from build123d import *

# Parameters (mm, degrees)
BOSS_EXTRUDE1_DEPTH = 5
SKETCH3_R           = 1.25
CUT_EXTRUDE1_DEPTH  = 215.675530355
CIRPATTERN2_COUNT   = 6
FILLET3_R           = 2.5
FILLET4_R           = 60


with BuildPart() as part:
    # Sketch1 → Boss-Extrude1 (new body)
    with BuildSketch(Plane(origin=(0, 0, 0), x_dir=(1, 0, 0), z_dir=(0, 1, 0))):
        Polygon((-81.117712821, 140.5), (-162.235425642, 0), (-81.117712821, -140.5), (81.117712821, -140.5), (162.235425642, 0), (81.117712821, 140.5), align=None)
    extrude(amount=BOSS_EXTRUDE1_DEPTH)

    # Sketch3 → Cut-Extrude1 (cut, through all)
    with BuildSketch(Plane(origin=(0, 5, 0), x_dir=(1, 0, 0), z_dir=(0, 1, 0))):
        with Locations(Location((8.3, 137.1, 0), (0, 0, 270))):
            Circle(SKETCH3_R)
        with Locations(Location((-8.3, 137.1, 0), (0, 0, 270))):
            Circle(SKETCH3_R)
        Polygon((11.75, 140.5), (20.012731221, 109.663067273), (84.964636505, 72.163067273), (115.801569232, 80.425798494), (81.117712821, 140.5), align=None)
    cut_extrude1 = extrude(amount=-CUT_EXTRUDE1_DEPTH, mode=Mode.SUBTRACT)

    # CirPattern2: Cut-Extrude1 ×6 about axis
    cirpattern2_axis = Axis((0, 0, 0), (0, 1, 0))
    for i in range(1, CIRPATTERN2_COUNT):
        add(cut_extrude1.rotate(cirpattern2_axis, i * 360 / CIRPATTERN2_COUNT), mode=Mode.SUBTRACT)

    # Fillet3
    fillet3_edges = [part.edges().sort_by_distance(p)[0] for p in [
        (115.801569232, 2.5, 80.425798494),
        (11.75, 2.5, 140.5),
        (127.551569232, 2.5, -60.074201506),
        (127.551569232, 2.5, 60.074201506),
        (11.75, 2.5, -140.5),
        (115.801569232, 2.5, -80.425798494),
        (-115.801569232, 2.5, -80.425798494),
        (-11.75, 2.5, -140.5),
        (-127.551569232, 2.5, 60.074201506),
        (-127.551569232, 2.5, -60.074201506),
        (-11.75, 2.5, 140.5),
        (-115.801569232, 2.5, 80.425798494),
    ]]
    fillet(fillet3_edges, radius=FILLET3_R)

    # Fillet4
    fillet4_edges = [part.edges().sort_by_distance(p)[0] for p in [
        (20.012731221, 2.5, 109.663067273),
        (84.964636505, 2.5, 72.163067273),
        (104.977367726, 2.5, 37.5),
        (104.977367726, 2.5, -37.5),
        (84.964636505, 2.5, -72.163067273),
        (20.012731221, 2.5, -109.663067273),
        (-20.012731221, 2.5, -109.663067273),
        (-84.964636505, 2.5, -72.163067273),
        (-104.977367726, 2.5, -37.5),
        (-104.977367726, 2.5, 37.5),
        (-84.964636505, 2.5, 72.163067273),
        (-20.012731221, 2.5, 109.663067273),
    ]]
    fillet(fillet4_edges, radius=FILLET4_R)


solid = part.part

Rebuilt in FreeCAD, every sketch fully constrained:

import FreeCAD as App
import Part
import Sketcher
from FreeCAD import Vector
Q = App.Units.Quantity


def edges_at(feature, points):
    """Names of the edges that pass closest to the given points."""
    edges = feature.Shape.Edges
    near = lambda p: min(range(len(edges)), key=lambda i: edges[i].distToShape(Part.Vertex(*p))[0])
    return sorted({f"Edge{near(p) + 1}" for p in points})

doc = App.newDocument("Part")
params = doc.addObject("Spreadsheet::Sheet", "Params")
for row, (alias, value) in enumerate([
    ("pad1_length", "5 mm"),
    ("sketch2_diameter", "2.5 mm"),
    ("sketch2_length", "75 mm"),
    ("fillet_radius", "2.5 mm"),
    ("fillet2_radius", "60 mm"),
], start=1):
    params.set(f"A{row}", alias)
    params.set(f"B{row}", "=" + value)
    params.setAlias(f"B{row}", alias)

body = doc.addObject("PartDesign::Body", "Body")

sketch1 = doc.addObject("Sketcher::SketchObject", "Sketch")
body.addObject(sketch1)
sketch1.AttachmentSupport = (doc.XZ_Plane, [""])
sketch1.MapMode = "FlatFace"
sketch1.addGeometry([
    Part.LineSegment(Vector(-81.117713, -140.5, 0), Vector(-162.235426, 0, 0)),
    Part.LineSegment(Vector(-162.235426, 0, 0), Vector(-81.117713, 140.5, 0)),
    Part.LineSegment(Vector(-81.117713, 140.5, 0), Vector(81.117713, 140.5, 0)),
    Part.LineSegment(Vector(81.117713, 140.5, 0), Vector(162.235426, 0, 0)),
    Part.LineSegment(Vector(162.235426, 0, 0), Vector(81.117713, -140.5, 0)),
    Part.LineSegment(Vector(81.117713, -140.5, 0), Vector(-81.117713, -140.5, 0)),
], False)
sketch1.addConstraint([
    Sketcher.Constraint("Coincident", 0, 2, 1, 1),
    Sketcher.Constraint("Coincident", 1, 2, 2, 1),
    Sketcher.Constraint("Coincident", 2, 2, 3, 1),
    Sketcher.Constraint("Coincident", 3, 2, 4, 1),
    Sketcher.Constraint("Coincident", 4, 2, 5, 1),
    Sketcher.Constraint("Coincident", 5, 2, 0, 1),
    Sketcher.Constraint("Horizontal", 2),
    Sketcher.Constraint("Horizontal", 5),
    Sketcher.Constraint("Symmetric", 0, 2, 3, 2, -1, 1),
    Sketcher.Constraint("Symmetric", 1, 2, 4, 2, -1, 1),
    Sketcher.Constraint("PointOnObject", 0, 2, -1),
    Sketcher.Constraint("Parallel", 0, 3),
    Sketcher.Constraint("Vertical", 2, 2, 4, 2),
    Sketcher.Constraint("Angle", 0, Q("120 deg")),
    Sketcher.Constraint("DistanceY", 4, 2, 2, 2, Q("281 mm")),
    Sketcher.Constraint("DistanceX", 2, 1, 2, 2, Q("162.235426 mm")),
])
pad1 = doc.addObject("PartDesign::Pad", "Pad")
body.addObject(pad1)
pad1.Profile = sketch1
pad1.setExpression("Length", "Params.pad1_length")
pad1.Reversed = True

sketch2 = doc.addObject("Sketcher::SketchObject", "Sketch001")
body.addObject(sketch2)
sketch2.AttachmentSupport = (doc.XZ_Plane, [""])
sketch2.MapMode = "FlatFace"
sketch2.AttachmentOffset = App.Placement(Vector(0, 0, -5), App.Rotation())
sketch2.addGeometry([
    Part.Circle(Vector(8.3, -137.1, 0), Vector(0, 0, 1), 1.25),
    Part.Circle(Vector(-8.3, -137.1, 0), Vector(0, 0, 1), 1.25),
    Part.LineSegment(Vector(11.75, -140.5, 0), Vector(20.012731, -109.663067, 0)),
    Part.LineSegment(Vector(20.012731, -109.663067, 0), Vector(84.964637, -72.163067, 0)),
    Part.LineSegment(Vector(84.964637, -72.163067, 0), Vector(115.801569, -80.425798, 0)),
    Part.LineSegment(Vector(115.801569, -80.425798, 0), Vector(81.117713, -140.5, 0)),
    Part.LineSegment(Vector(81.117713, -140.5, 0), Vector(11.75, -140.5, 0)),
], False)
sketch2.addConstraint([
    Sketcher.Constraint("Coincident", 2, 2, 3, 1),
    Sketcher.Constraint("Coincident", 3, 2, 4, 1),
    Sketcher.Constraint("Coincident", 4, 2, 5, 1),
    Sketcher.Constraint("Coincident", 5, 2, 6, 1),
    Sketcher.Constraint("Coincident", 6, 2, 2, 1),
    Sketcher.Constraint("Horizontal", 6),
    Sketcher.Constraint("Equal", 0, 1),
    Sketcher.Constraint("Symmetric", 0, 3, 1, 3, -2),
    Sketcher.Constraint("Perpendicular", 2, 4),
    Sketcher.Constraint("Equal", 2, 4),
    Sketcher.Constraint("Diameter", 0, Q("2.5 mm")),
    Sketcher.Constraint("Angle", 2, Q("75 deg")),
    Sketcher.Constraint("Angle", 3, Q("30 deg")),
    Sketcher.Constraint("Angle", 5, Q("-120 deg")),
    Sketcher.Constraint("Distance", 3, Q("75 mm")),
    Sketcher.Constraint("DistanceX", -1, 1, 0, 3, Q("8.3 mm")),
    Sketcher.Constraint("DistanceY", 0, 3, -1, 1, Q("137.1 mm")),
    Sketcher.Constraint("DistanceY", 5, 2, -1, 1, Q("140.5 mm")),
    Sketcher.Constraint("DistanceX", -1, 1, 6, 2, Q("11.75 mm")),
    Sketcher.Constraint("DistanceY", 4, 2, -1, 1, Q("80.425798 mm")),
])
sketch2.setExpression("Constraints[10]", "Params.sketch2_diameter")
sketch2.setExpression("Constraints[14]", "Params.sketch2_length")
pocket1 = doc.addObject("PartDesign::Pocket", "Pocket")
body.addObject(pocket1)
pocket1.Profile = sketch2
pocket1.Type = "ThroughAll"
pocket1.Reversed = True
doc.recompute()

polarpattern = doc.addObject("PartDesign::PolarPattern", "PolarPattern")
body.addObject(polarpattern)
polarpattern.Originals = [pocket1]
polarpattern.Axis = (doc.Y_Axis, [""])
polarpattern.Angle = 360
polarpattern.Occurrences = 6
body.Tip = polarpattern
doc.recompute()

fillet = doc.addObject("PartDesign::Fillet", "Fillet")
body.addObject(fillet)
fillet.Base = (polarpattern, edges_at(polarpattern, [
    (115.802, 2.5, 80.426),
    (11.75, 2.5, 140.5),
    (127.552, 2.5, -60.074),
    (127.552, 2.5, 60.074),
    (11.75, 2.5, -140.5),
    (115.802, 2.5, -80.426),
    (-115.802, 2.5, -80.426),
    (-11.75, 2.5, -140.5),
    (-127.552, 2.5, 60.074),
    (-127.552, 2.5, -60.074),
    (-11.75, 2.5, 140.5),
    (-115.802, 2.5, 80.426),
]))
fillet.setExpression("Radius", "Params.fillet_radius")
doc.recompute()

fillet2 = doc.addObject("PartDesign::Fillet", "Fillet001")
body.addObject(fillet2)
fillet2.Base = (fillet, edges_at(fillet, [
    (20.013, 2.5, 109.663),
    (84.965, 2.5, 72.163),
    (104.977, 2.5, 37.5),
    (104.977, 2.5, -37.5),
    (84.965, 2.5, -72.163),
    (20.013, 2.5, -109.663),
    (-20.013, 2.5, -109.663),
    (-84.965, 2.5, -72.163),
    (-104.977, 2.5, -37.5),
    (-104.977, 2.5, 37.5),
    (-84.965, 2.5, 72.163),
    (-20.013, 2.5, 109.663),
]))
fillet2.setExpression("Radius", "Params.fillet2_radius")

doc.recompute()
